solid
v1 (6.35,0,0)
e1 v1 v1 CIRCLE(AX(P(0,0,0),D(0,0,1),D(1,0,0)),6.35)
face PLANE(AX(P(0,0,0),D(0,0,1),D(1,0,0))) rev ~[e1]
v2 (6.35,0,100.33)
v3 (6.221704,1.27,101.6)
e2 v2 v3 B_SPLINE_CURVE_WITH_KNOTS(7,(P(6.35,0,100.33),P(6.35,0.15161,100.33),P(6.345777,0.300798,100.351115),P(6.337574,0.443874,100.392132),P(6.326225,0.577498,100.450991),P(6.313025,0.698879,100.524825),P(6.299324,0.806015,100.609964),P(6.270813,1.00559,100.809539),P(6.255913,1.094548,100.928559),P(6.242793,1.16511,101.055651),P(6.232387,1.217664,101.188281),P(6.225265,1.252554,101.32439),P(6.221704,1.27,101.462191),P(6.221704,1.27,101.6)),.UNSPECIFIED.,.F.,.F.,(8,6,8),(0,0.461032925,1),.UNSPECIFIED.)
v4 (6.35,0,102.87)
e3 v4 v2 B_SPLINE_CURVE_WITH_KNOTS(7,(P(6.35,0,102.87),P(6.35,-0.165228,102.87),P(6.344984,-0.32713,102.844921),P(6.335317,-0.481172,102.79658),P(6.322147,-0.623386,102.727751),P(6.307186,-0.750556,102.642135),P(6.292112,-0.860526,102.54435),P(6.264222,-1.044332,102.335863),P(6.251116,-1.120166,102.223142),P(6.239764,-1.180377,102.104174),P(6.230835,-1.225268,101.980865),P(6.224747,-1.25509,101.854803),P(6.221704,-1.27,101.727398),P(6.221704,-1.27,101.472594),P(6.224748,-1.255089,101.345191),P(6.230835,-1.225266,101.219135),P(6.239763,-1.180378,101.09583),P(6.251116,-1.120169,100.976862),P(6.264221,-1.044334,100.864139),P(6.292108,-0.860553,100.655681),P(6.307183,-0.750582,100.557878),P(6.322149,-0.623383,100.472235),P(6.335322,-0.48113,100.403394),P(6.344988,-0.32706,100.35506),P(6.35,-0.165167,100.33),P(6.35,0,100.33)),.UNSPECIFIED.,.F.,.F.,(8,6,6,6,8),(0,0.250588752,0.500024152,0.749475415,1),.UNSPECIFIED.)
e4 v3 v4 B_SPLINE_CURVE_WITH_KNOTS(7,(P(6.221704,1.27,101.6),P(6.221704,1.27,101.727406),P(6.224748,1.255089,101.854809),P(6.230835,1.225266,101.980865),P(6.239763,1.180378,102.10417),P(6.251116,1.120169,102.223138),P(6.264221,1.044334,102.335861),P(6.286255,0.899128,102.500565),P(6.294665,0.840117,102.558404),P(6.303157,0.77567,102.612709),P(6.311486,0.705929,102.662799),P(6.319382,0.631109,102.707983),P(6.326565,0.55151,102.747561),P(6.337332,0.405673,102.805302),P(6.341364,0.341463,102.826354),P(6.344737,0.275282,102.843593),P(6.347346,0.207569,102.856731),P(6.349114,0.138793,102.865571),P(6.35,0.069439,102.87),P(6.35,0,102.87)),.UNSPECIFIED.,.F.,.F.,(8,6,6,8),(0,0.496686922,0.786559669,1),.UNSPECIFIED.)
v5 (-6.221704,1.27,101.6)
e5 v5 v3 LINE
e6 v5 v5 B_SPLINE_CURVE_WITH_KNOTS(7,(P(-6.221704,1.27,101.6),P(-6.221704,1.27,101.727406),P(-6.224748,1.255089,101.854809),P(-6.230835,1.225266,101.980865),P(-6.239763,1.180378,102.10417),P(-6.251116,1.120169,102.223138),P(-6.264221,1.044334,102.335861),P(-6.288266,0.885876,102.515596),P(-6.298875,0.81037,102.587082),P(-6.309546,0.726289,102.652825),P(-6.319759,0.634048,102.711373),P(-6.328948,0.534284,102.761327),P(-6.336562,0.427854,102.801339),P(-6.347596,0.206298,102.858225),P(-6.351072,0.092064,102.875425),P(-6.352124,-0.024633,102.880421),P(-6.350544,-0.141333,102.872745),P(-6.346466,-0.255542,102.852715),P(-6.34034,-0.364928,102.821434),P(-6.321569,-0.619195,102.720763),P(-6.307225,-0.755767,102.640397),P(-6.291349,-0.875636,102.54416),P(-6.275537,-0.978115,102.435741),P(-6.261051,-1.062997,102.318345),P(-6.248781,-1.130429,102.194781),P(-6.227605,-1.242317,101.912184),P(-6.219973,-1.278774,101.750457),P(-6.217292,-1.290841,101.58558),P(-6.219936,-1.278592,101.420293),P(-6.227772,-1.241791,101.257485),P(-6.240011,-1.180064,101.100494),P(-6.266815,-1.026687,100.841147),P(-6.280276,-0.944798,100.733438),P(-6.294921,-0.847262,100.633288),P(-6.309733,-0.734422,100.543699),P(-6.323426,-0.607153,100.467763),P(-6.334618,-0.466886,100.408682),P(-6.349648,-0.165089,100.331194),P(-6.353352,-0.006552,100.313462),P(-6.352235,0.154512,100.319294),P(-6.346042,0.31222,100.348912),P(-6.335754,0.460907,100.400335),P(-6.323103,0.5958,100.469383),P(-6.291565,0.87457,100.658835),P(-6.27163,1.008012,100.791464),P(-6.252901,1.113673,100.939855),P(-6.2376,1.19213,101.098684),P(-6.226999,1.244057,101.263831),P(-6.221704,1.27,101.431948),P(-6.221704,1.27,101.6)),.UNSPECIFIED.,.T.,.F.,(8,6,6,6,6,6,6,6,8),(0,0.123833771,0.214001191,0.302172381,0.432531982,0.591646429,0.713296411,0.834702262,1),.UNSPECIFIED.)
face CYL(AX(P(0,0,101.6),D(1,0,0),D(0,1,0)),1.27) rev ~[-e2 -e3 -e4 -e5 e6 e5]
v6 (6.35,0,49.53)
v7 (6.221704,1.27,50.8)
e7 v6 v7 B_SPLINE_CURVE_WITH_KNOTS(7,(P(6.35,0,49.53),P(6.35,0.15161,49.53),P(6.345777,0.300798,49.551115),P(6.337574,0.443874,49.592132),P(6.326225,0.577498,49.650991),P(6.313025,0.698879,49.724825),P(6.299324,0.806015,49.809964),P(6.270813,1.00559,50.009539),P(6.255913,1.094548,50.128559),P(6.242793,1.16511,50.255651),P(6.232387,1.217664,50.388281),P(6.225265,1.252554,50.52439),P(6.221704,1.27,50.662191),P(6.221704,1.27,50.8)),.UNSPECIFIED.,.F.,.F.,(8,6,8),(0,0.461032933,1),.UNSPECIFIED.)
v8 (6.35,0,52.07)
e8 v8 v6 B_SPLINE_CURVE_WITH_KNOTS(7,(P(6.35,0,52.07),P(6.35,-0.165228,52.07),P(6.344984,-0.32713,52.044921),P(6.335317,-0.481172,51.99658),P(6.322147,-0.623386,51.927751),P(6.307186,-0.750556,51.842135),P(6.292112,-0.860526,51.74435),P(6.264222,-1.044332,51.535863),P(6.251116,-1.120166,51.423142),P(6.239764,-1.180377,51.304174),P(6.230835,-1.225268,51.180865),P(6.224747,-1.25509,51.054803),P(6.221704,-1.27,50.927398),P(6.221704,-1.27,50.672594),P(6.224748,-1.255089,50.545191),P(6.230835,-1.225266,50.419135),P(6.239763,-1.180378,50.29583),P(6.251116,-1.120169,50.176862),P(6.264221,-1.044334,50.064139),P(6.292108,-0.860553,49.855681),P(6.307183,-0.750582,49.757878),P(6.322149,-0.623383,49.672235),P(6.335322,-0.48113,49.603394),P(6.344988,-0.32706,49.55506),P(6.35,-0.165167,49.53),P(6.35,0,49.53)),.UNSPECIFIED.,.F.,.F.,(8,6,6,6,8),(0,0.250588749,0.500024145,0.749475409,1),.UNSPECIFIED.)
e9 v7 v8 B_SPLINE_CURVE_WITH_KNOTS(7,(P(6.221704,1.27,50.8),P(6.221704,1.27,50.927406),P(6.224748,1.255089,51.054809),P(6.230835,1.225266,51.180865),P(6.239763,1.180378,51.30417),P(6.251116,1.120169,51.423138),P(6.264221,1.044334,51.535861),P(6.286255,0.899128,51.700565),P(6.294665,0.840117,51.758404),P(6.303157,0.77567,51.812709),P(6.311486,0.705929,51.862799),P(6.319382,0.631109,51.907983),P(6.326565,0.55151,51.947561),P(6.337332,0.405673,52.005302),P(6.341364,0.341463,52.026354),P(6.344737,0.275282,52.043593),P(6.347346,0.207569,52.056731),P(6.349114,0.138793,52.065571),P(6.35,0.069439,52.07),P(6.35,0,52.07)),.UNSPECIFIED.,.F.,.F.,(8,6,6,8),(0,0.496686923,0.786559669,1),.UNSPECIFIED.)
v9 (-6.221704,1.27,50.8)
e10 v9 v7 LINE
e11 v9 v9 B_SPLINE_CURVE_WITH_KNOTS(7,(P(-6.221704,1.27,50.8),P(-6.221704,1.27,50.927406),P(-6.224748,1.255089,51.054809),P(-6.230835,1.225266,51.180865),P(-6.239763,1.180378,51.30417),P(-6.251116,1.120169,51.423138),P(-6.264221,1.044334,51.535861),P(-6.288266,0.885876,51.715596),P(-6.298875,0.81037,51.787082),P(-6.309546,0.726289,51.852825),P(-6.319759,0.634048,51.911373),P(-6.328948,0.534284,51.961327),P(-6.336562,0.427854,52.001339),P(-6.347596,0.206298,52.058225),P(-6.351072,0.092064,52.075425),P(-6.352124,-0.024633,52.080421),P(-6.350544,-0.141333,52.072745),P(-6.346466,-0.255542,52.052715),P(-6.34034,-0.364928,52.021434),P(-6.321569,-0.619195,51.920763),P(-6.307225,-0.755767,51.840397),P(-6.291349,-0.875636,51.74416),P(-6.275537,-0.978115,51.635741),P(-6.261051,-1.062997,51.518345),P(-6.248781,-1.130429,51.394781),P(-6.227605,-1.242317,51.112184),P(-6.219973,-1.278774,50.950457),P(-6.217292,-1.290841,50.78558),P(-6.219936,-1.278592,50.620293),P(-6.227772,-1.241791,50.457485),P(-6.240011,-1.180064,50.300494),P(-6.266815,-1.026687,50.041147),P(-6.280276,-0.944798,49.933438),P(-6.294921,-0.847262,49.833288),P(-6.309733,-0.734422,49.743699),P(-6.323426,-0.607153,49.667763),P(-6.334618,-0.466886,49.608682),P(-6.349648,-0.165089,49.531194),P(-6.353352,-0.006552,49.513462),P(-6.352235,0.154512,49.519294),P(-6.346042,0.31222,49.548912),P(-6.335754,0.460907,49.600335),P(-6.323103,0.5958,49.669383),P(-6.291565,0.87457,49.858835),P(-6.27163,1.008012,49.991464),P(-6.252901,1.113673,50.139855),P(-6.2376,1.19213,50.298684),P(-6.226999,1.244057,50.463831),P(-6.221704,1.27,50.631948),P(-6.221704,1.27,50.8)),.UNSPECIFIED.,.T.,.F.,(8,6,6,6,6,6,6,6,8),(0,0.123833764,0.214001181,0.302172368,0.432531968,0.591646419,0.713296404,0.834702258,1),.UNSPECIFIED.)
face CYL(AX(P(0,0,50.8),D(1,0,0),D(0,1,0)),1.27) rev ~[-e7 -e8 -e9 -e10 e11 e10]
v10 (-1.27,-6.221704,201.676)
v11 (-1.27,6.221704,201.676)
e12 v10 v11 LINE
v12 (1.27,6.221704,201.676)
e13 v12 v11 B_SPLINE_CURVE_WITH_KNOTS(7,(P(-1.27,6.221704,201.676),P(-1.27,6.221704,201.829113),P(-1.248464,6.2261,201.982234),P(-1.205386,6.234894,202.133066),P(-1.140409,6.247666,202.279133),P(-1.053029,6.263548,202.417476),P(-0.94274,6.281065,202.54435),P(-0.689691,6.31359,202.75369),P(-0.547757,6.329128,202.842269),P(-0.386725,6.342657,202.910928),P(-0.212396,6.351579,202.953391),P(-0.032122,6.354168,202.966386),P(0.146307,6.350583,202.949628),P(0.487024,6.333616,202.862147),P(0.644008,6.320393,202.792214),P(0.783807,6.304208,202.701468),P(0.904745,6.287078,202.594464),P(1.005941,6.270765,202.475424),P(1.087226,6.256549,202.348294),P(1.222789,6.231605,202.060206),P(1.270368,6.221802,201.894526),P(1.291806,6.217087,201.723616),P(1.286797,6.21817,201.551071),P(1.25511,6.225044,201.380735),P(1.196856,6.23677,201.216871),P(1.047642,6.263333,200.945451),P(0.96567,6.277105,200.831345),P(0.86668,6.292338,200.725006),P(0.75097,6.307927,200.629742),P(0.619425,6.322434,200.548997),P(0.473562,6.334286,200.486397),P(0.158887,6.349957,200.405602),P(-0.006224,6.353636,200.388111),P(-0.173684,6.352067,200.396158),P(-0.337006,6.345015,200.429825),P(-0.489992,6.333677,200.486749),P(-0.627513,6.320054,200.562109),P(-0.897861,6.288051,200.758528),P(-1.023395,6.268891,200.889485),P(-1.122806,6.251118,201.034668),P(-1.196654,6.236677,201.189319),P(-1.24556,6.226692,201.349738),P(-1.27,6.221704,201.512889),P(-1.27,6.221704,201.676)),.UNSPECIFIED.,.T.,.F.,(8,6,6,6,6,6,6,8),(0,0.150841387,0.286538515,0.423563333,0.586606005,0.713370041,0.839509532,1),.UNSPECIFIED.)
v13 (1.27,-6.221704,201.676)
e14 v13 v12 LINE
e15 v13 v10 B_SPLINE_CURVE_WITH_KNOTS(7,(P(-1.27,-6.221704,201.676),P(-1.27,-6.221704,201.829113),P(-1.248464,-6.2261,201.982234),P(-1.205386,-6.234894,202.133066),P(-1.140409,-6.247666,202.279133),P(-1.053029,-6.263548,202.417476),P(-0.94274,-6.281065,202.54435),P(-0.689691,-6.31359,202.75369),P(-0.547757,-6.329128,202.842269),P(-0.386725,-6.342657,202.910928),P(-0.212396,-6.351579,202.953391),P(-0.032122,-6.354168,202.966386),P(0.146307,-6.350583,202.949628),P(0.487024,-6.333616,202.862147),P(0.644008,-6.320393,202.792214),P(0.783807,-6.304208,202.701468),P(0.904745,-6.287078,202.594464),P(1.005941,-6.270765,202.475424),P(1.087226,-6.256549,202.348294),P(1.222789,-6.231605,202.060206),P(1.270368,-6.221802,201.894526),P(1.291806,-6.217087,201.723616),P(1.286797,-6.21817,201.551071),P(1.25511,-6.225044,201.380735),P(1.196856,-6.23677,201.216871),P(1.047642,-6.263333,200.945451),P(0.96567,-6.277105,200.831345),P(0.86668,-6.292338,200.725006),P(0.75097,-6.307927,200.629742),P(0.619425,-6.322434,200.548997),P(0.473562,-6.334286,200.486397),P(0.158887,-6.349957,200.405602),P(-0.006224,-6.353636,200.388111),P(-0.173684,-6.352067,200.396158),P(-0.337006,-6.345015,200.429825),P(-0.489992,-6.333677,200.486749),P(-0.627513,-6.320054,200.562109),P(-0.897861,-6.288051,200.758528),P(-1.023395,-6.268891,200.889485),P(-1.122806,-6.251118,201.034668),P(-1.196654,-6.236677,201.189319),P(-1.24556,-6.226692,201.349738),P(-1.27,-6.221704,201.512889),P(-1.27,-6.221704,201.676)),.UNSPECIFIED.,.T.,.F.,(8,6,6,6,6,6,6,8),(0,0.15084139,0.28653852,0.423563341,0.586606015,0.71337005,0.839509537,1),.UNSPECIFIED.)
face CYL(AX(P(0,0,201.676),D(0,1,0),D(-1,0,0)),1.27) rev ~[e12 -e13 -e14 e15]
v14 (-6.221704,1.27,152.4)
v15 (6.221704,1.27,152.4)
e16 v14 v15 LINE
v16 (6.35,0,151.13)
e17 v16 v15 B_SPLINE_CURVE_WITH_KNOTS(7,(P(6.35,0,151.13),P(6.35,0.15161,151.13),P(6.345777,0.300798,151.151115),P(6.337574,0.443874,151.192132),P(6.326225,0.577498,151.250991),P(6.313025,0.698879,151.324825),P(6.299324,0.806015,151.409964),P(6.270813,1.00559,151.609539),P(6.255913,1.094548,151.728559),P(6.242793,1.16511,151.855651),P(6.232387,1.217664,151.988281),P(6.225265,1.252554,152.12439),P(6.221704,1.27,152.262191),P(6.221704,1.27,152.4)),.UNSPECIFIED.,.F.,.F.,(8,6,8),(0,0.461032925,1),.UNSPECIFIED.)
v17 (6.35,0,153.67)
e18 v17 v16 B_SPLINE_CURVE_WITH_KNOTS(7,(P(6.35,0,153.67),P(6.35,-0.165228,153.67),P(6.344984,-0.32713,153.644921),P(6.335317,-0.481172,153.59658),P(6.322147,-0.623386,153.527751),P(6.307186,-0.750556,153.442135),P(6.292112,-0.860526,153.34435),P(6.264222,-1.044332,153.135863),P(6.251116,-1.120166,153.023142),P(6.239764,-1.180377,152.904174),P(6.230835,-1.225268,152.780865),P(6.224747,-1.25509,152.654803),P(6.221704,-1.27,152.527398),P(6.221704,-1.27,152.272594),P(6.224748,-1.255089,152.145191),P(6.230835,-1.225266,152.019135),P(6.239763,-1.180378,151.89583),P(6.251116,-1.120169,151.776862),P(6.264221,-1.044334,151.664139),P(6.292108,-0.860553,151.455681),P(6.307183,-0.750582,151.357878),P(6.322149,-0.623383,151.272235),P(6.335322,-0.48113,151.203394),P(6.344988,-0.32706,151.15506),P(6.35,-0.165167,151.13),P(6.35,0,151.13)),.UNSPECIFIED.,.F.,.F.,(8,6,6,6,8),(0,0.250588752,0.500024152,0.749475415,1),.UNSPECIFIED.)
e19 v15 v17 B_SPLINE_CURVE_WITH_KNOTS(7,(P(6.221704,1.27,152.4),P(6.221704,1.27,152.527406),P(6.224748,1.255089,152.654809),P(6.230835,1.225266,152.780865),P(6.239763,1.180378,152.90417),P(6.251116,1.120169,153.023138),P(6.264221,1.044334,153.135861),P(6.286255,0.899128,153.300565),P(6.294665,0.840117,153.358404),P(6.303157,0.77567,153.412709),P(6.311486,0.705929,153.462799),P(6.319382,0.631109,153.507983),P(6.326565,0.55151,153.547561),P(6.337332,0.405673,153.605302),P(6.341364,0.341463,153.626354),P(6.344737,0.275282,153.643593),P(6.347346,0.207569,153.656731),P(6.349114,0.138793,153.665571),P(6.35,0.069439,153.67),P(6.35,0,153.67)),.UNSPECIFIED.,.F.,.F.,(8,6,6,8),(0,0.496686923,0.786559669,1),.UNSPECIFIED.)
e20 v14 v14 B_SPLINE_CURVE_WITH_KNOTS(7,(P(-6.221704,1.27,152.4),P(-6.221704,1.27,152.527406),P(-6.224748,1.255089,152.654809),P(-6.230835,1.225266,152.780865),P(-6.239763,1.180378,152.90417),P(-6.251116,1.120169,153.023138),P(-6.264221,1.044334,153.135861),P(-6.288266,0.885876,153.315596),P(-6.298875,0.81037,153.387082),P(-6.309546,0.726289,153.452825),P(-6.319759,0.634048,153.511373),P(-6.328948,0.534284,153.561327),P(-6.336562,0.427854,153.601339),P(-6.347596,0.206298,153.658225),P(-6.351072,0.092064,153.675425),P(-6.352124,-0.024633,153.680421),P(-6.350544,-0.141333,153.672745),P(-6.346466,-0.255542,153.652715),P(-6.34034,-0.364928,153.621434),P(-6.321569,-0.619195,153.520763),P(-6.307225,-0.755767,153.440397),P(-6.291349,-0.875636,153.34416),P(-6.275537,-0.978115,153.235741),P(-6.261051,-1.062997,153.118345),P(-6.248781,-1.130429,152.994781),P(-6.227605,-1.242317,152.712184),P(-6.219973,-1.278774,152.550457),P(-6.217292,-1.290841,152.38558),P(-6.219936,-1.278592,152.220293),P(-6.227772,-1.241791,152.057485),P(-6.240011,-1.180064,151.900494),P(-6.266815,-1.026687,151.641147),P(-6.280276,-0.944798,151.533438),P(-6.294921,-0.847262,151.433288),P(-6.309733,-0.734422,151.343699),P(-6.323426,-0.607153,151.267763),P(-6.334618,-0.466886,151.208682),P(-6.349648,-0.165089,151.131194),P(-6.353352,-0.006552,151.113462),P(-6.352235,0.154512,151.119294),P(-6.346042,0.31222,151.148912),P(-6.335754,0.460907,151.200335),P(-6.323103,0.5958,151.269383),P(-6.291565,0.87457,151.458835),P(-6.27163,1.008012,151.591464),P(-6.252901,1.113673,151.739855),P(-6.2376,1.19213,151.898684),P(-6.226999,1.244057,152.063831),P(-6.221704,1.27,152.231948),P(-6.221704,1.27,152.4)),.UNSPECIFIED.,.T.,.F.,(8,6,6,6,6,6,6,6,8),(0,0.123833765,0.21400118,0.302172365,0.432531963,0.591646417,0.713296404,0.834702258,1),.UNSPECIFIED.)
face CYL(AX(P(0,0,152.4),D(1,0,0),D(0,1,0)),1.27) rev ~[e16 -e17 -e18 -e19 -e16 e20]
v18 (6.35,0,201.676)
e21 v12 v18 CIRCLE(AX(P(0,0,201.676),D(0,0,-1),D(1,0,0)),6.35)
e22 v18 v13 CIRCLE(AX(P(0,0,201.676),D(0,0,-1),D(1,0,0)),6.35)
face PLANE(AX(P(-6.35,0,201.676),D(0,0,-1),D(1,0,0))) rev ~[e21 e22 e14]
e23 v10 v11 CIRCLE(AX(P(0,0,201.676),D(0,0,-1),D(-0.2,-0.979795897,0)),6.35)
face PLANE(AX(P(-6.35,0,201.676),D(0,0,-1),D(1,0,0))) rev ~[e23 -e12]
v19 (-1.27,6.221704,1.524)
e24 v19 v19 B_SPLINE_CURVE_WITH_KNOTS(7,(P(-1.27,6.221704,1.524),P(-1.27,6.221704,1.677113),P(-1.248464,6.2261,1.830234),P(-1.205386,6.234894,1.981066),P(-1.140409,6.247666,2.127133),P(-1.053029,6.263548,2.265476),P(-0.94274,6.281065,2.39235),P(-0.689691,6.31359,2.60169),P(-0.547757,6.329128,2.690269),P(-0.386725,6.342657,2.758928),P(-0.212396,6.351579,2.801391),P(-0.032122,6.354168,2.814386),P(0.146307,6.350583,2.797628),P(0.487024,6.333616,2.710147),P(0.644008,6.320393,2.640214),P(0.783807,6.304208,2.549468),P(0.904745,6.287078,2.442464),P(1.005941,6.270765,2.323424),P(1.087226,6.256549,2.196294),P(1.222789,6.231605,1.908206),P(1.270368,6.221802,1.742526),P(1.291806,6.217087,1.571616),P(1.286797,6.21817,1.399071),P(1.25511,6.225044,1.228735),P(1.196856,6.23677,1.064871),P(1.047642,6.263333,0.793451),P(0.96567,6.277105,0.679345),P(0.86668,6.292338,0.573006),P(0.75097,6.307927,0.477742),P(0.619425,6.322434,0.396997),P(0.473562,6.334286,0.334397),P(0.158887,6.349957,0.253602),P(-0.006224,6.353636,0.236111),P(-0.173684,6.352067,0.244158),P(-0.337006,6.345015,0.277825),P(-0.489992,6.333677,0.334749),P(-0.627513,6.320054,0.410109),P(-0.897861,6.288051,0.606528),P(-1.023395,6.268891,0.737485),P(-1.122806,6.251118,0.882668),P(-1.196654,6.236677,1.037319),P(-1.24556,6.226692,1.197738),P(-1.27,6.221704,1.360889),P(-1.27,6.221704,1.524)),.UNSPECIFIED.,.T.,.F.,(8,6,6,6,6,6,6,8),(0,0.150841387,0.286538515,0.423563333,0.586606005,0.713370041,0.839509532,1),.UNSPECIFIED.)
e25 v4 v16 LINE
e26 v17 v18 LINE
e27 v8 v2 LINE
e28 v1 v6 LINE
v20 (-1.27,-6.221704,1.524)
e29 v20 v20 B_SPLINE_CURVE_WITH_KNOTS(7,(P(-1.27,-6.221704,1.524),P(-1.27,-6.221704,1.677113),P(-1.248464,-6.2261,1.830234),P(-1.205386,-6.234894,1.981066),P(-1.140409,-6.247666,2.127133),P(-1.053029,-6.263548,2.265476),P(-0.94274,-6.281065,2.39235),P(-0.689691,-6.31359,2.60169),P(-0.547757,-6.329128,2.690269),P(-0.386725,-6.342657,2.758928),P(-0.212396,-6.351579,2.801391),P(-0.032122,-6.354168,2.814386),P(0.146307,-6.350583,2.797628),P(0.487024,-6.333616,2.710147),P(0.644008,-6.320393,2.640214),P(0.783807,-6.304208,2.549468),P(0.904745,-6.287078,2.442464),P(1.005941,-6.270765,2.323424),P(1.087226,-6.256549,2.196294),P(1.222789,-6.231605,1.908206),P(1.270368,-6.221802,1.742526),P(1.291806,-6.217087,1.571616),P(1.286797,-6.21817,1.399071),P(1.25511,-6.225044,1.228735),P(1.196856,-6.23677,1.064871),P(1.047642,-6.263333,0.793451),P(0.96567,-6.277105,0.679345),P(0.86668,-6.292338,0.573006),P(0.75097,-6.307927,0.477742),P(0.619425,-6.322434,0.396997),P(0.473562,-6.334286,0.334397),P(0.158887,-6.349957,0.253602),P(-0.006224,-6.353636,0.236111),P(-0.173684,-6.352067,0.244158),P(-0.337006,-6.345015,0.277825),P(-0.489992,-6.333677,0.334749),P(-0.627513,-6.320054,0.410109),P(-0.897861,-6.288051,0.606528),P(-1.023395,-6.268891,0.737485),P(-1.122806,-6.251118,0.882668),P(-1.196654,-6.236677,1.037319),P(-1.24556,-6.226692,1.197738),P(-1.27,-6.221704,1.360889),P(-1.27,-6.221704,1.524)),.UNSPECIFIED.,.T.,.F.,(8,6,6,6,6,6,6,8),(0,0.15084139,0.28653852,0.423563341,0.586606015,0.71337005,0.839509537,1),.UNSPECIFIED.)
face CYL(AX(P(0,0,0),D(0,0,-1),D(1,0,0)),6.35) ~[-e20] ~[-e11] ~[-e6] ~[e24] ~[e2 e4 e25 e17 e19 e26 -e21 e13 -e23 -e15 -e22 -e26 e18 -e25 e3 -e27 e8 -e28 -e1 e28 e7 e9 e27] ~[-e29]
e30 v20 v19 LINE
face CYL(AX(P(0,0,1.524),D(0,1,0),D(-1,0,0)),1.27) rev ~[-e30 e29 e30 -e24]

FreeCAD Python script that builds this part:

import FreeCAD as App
import Part
import Sketcher
Q = App.Units.Quantity

doc = App.newDocument("Part")
body = doc.addObject("PartDesign::Body", "Body")

sketch1 = body.newObject("Sketcher::SketchObject", "Sketch")
sketch1.AttachmentSupport = (doc.getObject("XY_Plane"), [""])
sketch1.MapMode = "FlatFace"
sketch1.addGeometry(Part.Circle(App.Vector(0, 0, 0), App.Vector(0, 0, 1), 6), False)
sketch1.addConstraint([
    Sketcher.Constraint("Coincident", 0, 3, -1, 1),
    Sketcher.Constraint("Diameter", 0, Q("0.5 in")),
])
pad1 = body.newObject("PartDesign::Pad", "Pad")
pad1.Profile = sketch1
pad1.Length = Q("8 in")

sketch2 = body.newObject("Sketcher::SketchObject", "Sketch001")
sketch2.AttachmentSupport = (doc.getObject("XZ_Plane"), [""])
sketch2.MapMode = "FlatFace"
sketch2.addGeometry([
    Part.Circle(App.Vector(0, 201.7, 0), App.Vector(0, 0, 1), 1.3),
    Part.Circle(App.Vector(0, 1.5, 0), App.Vector(0, 0, 1), 1.3),
], False)
sketch2.addConstraint([
    Sketcher.Constraint("Equal", 0, 1),
    Sketcher.Constraint("PointOnObject", 0, 3, -2),
    Sketcher.Constraint("PointOnObject", 1, 3, -2),
    Sketcher.Constraint("Diameter", 0, Q("0.1 in")),
    Sketcher.Constraint("DistanceY", -1, 1, 1, 3, Q("0.06 in")),
    Sketcher.Constraint("DistanceY", -1, 1, 0, 3, Q("7.94 in")),
])
pocket1 = body.newObject("PartDesign::Pocket", "Pocket")
pocket1.Profile = sketch2
pocket1.Length = Q("0.6 in")
pocket1.Midplane = True

sketch3 = body.newObject("Sketcher::SketchObject", "Sketch002")
sketch3.AttachmentSupport = (doc.getObject("YZ_Plane"), [""])
sketch3.MapMode = "FlatFace"
sketch3.addGeometry([
    Part.Circle(App.Vector(0, 50.8, 0), App.Vector(0, 0, 1), 1.3),
    Part.Circle(App.Vector(0, 152.4, 0), App.Vector(0, 0, 1), 1.3),
    Part.Circle(App.Vector(0, 101.6, 0), App.Vector(0, 0, 1), 1.3),
], False)
sketch3.addConstraint([
    Sketcher.Constraint("Equal", 0, 1),
    Sketcher.Constraint("Equal", 1, 2),
    Sketcher.Constraint("PointOnObject", 0, 3, -2),
    Sketcher.Constraint("PointOnObject", 1, 3, -2),
    Sketcher.Constraint("PointOnObject", 2, 3, -2),
    Sketcher.Constraint("Diameter", 0, Q("0.1 in")),
    Sketcher.Constraint("DistanceY", -1, 1, 0, 3, Q("2 in")),
    Sketcher.Constraint("DistanceY", 0, 3, 2, 3, Q("2 in")),
    Sketcher.Constraint("DistanceY", 2, 3, 1, 3, Q("2 in")),
])
pocket2 = body.newObject("PartDesign::Pocket", "Pocket001")
pocket2.Profile = sketch3
pocket2.Length = Q("1 in")
pocket2.Midplane = True

sketch4 = body.newObject("Sketcher::SketchObject", "Sketch003")
sketch4.AttachmentSupport = (doc.getObject("XZ_Plane"), [""])
sketch4.MapMode = "FlatFace"
sketch4.addGeometry([
    Part.LineSegment(App.Vector(6.3, 201.7, 0), App.Vector(-6.3, 201.7, 0)),
    Part.LineSegment(App.Vector(-6.3, 201.7, 0), App.Vector(-6.3, 203.2, 0)),
    Part.LineSegment(App.Vector(-6.3, 203.2, 0), App.Vector(6.3, 203.2, 0)),
    Part.LineSegment(App.Vector(6.3, 203.2, 0), App.Vector(6.3, 201.7, 0)),
], False)
sketch4.addConstraint([
    Sketcher.Constraint("Coincident", 0, 2, 1, 1),
    Sketcher.Constraint("Coincident", 1, 2, 2, 1),
    Sketcher.Constraint("Coincident", 2, 2, 3, 1),
    Sketcher.Constraint("Coincident", 3, 2, 0, 1),
    Sketcher.Constraint("Horizontal", 0),
    Sketcher.Constraint("Vertical", 1),
    Sketcher.Constraint("Horizontal", 2),
    Sketcher.Constraint("Vertical", 3),
    Sketcher.Constraint("DistanceX", 0, 2, 0, 1, Q("0.5 in")),
    Sketcher.Constraint("DistanceY", 1, 1, 1, 2, Q("0.06 in")),
    Sketcher.Constraint("DistanceY", -1, 1, 1, 2, Q("8 in")),
    Sketcher.Constraint("DistanceX", 0, 2, -1, 1, Q("0.25 in")),
])
pocket3 = body.newObject("PartDesign::Pocket", "Pocket002")
pocket3.Profile = sketch4
pocket3.Length = Q("1 in")
pocket3.Midplane = True

doc.recompute()
